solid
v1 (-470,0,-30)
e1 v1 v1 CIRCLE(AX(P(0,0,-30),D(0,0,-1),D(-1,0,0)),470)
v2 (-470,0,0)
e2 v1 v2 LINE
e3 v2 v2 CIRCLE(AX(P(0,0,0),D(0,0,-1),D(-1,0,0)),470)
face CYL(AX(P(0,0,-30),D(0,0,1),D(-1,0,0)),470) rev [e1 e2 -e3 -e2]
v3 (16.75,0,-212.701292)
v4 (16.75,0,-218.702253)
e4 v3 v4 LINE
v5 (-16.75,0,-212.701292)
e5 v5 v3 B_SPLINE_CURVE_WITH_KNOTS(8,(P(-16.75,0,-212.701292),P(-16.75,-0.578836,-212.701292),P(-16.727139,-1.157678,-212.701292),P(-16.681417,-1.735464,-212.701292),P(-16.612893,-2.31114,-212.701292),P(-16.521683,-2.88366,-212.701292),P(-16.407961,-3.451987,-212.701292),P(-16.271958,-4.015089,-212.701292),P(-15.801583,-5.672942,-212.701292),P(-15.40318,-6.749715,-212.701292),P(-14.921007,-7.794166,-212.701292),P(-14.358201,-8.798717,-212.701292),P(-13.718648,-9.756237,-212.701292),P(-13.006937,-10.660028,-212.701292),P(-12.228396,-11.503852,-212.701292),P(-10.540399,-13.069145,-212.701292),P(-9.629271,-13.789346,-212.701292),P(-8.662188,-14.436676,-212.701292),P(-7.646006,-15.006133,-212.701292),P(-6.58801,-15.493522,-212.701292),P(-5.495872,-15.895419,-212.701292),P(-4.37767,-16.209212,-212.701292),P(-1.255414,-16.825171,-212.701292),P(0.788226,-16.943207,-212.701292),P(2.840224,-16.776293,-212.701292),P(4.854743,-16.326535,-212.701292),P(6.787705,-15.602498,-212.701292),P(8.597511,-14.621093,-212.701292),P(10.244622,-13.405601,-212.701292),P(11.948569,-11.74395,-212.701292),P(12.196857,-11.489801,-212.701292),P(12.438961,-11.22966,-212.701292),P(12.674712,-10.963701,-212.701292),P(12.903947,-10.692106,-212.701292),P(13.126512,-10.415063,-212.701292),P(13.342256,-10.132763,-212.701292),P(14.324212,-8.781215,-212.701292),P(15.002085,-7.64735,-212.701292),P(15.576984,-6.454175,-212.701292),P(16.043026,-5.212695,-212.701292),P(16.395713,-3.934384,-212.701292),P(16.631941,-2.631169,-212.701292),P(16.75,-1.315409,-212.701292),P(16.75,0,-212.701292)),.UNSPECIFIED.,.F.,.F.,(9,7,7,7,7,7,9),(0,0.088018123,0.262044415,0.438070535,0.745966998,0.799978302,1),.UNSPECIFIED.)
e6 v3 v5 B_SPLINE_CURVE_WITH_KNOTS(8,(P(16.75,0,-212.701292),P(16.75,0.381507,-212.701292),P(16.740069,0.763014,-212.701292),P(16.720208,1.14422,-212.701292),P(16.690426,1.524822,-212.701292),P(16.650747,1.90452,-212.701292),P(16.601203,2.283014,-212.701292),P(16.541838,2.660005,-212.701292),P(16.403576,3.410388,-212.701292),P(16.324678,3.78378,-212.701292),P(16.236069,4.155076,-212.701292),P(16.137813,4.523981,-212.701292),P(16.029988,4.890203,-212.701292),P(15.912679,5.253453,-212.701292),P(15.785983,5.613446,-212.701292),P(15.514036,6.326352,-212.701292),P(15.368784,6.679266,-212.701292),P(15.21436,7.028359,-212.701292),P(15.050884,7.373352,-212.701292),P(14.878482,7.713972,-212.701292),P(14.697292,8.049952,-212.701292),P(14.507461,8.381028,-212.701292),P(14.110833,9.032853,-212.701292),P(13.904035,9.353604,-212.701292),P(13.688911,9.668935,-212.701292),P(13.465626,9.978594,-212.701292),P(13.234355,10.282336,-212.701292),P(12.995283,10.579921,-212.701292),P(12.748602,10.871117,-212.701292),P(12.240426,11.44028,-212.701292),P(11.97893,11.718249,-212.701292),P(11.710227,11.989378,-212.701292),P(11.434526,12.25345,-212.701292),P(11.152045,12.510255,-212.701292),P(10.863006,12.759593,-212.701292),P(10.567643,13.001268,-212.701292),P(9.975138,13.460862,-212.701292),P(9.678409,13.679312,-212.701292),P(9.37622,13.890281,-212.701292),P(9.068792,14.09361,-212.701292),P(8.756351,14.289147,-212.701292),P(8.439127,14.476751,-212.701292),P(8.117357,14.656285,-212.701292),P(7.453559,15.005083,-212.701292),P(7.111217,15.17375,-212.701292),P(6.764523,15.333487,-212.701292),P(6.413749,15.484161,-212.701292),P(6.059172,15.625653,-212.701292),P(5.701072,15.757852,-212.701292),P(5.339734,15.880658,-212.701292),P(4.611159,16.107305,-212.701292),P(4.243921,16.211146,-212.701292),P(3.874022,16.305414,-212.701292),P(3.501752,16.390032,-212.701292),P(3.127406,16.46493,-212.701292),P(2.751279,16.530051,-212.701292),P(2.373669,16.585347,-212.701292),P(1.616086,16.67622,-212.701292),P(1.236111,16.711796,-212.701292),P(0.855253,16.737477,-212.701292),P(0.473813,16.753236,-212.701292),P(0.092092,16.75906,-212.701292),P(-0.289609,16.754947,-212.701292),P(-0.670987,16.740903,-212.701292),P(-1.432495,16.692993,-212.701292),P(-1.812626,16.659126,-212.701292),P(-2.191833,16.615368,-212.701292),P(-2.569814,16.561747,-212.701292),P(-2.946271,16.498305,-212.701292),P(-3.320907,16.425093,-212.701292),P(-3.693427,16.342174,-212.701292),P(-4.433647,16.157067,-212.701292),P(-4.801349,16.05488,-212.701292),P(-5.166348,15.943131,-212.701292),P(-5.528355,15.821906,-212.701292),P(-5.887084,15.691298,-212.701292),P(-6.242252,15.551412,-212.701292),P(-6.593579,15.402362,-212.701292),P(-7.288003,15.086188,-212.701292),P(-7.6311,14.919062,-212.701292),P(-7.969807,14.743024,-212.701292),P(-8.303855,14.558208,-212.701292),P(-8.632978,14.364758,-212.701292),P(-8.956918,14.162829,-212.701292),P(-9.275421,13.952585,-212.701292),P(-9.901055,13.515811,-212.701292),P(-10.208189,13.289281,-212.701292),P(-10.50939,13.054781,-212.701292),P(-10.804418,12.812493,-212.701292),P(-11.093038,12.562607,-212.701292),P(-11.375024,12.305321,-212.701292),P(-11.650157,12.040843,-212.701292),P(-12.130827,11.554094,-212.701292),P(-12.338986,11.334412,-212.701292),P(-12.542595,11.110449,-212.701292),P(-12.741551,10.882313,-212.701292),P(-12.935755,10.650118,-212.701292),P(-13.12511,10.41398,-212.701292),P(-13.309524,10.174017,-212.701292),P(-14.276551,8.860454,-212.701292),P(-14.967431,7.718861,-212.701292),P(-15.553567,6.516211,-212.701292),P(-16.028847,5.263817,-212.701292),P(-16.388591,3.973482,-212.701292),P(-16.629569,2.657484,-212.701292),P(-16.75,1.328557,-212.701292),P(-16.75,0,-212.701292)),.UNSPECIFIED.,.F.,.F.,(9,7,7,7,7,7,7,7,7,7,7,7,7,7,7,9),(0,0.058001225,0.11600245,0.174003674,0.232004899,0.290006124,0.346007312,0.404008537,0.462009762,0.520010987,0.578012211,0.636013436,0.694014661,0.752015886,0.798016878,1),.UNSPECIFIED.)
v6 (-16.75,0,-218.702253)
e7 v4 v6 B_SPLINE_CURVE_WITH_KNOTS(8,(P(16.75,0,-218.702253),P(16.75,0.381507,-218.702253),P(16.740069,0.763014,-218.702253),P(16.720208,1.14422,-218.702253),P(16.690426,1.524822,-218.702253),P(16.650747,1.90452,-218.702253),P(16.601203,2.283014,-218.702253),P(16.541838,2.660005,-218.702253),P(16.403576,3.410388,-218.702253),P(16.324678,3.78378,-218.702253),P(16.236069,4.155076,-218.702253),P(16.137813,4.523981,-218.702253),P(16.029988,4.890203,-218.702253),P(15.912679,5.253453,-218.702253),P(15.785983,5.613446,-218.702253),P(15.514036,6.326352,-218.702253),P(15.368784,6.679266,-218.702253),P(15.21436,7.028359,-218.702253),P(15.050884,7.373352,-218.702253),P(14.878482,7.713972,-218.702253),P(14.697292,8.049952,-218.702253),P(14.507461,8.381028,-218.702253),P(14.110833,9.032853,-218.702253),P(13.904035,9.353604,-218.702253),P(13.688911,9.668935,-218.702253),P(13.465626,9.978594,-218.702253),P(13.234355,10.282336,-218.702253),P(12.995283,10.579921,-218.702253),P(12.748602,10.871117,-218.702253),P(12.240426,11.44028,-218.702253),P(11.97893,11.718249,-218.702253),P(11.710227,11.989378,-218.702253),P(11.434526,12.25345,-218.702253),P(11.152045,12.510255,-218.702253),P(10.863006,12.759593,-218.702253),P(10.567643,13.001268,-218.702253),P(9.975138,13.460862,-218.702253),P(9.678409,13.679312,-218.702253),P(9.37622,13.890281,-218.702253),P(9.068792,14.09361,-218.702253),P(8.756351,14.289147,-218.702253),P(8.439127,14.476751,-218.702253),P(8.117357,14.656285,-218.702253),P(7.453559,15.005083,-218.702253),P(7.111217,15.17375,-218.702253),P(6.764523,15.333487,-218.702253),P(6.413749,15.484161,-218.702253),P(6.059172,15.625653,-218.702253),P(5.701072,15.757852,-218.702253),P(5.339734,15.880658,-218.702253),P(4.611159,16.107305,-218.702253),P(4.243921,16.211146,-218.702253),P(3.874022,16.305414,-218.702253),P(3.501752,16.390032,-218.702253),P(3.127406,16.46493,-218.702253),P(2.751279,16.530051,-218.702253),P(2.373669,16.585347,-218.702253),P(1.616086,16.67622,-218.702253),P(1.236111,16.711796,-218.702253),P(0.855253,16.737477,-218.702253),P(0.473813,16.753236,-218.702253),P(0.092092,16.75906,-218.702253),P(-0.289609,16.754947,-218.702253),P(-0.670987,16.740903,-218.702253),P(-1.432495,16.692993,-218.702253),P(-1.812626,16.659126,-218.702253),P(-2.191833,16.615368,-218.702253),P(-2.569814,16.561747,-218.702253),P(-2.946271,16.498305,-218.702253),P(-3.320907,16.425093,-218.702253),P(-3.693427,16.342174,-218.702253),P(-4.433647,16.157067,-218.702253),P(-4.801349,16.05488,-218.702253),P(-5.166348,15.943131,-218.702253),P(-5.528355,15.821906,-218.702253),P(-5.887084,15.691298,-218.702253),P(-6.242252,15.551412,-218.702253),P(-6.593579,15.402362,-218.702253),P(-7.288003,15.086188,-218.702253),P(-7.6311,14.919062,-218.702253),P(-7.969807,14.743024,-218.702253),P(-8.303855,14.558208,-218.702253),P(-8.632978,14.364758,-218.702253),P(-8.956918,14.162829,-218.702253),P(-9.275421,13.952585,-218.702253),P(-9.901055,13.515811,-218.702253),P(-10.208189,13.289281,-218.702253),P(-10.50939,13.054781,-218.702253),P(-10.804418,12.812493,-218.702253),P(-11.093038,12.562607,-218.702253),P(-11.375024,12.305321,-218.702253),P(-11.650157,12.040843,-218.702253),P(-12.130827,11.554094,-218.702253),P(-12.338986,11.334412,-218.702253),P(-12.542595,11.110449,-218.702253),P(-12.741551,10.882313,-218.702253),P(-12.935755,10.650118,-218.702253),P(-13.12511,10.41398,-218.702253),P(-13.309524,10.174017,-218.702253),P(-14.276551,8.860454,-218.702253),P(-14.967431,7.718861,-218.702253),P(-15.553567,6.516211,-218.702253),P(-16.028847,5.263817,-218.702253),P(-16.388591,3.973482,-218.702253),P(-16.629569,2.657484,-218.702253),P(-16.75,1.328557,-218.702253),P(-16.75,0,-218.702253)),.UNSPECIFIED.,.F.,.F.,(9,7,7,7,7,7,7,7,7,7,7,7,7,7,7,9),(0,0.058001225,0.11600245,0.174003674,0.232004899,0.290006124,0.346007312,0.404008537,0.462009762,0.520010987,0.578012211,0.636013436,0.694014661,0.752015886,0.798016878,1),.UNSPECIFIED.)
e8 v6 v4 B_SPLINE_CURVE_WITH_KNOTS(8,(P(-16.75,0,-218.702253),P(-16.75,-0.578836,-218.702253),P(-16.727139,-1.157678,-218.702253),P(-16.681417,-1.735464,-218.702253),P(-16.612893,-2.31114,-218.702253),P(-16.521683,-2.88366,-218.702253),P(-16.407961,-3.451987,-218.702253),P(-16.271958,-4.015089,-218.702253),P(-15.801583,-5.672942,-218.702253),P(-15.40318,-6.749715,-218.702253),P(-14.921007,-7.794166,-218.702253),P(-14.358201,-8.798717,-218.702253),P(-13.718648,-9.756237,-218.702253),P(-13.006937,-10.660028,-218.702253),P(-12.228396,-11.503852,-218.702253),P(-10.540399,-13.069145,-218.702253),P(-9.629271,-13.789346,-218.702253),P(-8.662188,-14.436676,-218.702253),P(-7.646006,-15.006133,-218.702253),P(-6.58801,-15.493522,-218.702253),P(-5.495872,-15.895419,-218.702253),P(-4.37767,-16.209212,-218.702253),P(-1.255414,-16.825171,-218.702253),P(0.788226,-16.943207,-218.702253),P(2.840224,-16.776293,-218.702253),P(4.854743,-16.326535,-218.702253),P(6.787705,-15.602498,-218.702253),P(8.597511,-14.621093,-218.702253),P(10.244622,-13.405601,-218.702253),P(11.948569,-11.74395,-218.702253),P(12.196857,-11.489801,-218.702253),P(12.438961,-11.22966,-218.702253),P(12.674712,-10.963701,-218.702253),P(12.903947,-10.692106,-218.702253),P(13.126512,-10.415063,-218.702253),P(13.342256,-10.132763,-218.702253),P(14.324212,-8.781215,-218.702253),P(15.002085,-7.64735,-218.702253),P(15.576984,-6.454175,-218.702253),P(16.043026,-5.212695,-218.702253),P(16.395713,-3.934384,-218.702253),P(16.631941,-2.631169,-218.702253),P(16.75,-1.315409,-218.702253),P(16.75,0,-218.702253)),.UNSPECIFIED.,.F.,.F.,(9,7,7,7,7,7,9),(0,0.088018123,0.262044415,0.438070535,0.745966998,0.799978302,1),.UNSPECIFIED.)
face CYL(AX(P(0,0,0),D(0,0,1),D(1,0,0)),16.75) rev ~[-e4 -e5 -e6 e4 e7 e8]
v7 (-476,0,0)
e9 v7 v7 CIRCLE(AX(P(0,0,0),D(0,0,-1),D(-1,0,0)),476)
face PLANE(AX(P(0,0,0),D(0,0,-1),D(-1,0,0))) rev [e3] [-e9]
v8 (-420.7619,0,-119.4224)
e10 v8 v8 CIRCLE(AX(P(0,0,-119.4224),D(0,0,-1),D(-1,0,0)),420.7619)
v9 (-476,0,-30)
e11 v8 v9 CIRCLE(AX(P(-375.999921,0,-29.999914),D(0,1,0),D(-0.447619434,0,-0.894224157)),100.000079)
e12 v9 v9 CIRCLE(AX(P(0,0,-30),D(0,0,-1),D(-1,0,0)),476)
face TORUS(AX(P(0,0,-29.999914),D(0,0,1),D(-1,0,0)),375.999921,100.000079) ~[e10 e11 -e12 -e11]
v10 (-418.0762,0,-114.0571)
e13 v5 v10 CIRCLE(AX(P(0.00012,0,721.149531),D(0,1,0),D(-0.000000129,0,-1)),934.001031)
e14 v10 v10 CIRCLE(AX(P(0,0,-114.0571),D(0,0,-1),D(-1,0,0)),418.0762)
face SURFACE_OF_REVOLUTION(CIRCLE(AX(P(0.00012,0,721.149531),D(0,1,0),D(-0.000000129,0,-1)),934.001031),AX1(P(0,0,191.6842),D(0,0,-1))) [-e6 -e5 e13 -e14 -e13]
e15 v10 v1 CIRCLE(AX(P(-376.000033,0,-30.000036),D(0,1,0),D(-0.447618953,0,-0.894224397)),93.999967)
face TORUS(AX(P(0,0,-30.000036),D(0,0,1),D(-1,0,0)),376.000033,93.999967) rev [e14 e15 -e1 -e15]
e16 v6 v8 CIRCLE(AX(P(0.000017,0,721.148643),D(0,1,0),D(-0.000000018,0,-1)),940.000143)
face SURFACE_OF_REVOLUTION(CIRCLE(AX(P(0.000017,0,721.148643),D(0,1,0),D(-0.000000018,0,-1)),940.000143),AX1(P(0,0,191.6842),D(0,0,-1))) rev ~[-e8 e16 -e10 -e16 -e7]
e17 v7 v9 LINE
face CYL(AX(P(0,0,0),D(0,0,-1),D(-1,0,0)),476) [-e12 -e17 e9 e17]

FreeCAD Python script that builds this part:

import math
import FreeCAD as App
import Part
import Sketcher

V = App.Vector
Q = App.Units.Quantity

doc = App.newDocument("Part")
body = doc.addObject("PartDesign::Body", "Body")

sketch1 = body.newObject("Sketcher::SketchObject", "Sketch")
sketch1.AttachmentSupport = (doc.getObject("XZ_Plane"), [""])
sketch1.MapMode = "FlatFace"
sketch1.addGeometry([
    Part.LineSegment(V(-476, -30, 0), V(-476, 0, 0)),
    Part.LineSegment(V(-476, 0, 0), V(-470, 0, 0)),
    Part.LineSegment(V(-470, 0, 0), V(-470, -30, 0)),
    Part.ArcOfCircle(Part.Circle(V(-376, -30, 0), V(0, 0, 1), 94), math.radians(180), math.radians(243)),
    Part.ArcOfCircle(Part.Circle(V(0, 721, 0), V(0, 0, 1), 934), math.radians(-117), math.radians(-90)),
    Part.LineSegment(V(0, -213, 0), V(0, -219, 0)),
    Part.ArcOfCircle(Part.Circle(V(0, 721, 0), V(0, 0, 1), 940), math.radians(-117), math.radians(-90)),
    Part.ArcOfCircle(Part.Circle(V(-376, -30, 0), V(0, 0, 1), 100), math.radians(180), math.radians(243)),
], False)
sketch1.addConstraint([
    Sketcher.Constraint("Coincident", 0, 2, 1, 1),
    Sketcher.Constraint("Coincident", 1, 2, 2, 1),
    Sketcher.Constraint("Tangent", 2, 2, 3, 1),
    Sketcher.Constraint("Tangent", 3, 2, 4, 1),
    Sketcher.Constraint("Coincident", 4, 2, 5, 1),
    Sketcher.Constraint("Coincident", 5, 2, 6, 2),
    Sketcher.Constraint("Tangent", 6, 1, 7, 2),
    Sketcher.Constraint("Tangent", 7, 1, 0, 1),
    Sketcher.Constraint("Vertical", 0),
    Sketcher.Constraint("Horizontal", 1),
    Sketcher.Constraint("Vertical", 2),
    Sketcher.Constraint("Vertical", 5),
    Sketcher.Constraint("Coincident", 7, 3, 3, 3),
    Sketcher.Constraint("PointOnObject", 4, 3, -2),
    Sketcher.Constraint("PointOnObject", 6, 3, -2),
    Sketcher.Constraint("PointOnObject", 0, 2, -1),
    Sketcher.Constraint("PointOnObject", 5, 2, -2),
    Sketcher.Constraint("Equal", 1, 5),
    Sketcher.Constraint("Radius", 6, Q("940 mm")),
    Sketcher.Constraint("Radius", 7, Q("100 mm")),
    Sketcher.Constraint("DistanceX", 1, 1, 1, 2, Q("6 mm")),
    Sketcher.Constraint("DistanceY", 0, 1, 0, 2, Q("30 mm")),
    Sketcher.Constraint("DistanceX", 3, 3, -1, 1, Q("376 mm")),
])
revolution = body.newObject("PartDesign::Revolution", "Revolution")
revolution.Profile = sketch1
revolution.ReferenceAxis = (sketch1, ["V_Axis"])
revolution.Angle = 360

sketch2 = body.newObject("Sketcher::SketchObject", "Sketch001")
sketch2.AttachmentSupport = (doc.getObject("XY_Plane"), [""])
sketch2.MapMode = "FlatFace"
sketch2.addGeometry(Part.Circle(V(0, 0, 0), V(0, 0, 1), 17), False)
sketch2.addConstraint([
    Sketcher.Constraint("Coincident", 0, 3, -1, 1),
    Sketcher.Constraint("Diameter", 0, Q("33.5 mm")),
])
pocket1 = body.newObject("PartDesign::Pocket", "Pocket")
pocket1.Profile = sketch2
pocket1.Type = "ThroughAll"

doc.recompute()
